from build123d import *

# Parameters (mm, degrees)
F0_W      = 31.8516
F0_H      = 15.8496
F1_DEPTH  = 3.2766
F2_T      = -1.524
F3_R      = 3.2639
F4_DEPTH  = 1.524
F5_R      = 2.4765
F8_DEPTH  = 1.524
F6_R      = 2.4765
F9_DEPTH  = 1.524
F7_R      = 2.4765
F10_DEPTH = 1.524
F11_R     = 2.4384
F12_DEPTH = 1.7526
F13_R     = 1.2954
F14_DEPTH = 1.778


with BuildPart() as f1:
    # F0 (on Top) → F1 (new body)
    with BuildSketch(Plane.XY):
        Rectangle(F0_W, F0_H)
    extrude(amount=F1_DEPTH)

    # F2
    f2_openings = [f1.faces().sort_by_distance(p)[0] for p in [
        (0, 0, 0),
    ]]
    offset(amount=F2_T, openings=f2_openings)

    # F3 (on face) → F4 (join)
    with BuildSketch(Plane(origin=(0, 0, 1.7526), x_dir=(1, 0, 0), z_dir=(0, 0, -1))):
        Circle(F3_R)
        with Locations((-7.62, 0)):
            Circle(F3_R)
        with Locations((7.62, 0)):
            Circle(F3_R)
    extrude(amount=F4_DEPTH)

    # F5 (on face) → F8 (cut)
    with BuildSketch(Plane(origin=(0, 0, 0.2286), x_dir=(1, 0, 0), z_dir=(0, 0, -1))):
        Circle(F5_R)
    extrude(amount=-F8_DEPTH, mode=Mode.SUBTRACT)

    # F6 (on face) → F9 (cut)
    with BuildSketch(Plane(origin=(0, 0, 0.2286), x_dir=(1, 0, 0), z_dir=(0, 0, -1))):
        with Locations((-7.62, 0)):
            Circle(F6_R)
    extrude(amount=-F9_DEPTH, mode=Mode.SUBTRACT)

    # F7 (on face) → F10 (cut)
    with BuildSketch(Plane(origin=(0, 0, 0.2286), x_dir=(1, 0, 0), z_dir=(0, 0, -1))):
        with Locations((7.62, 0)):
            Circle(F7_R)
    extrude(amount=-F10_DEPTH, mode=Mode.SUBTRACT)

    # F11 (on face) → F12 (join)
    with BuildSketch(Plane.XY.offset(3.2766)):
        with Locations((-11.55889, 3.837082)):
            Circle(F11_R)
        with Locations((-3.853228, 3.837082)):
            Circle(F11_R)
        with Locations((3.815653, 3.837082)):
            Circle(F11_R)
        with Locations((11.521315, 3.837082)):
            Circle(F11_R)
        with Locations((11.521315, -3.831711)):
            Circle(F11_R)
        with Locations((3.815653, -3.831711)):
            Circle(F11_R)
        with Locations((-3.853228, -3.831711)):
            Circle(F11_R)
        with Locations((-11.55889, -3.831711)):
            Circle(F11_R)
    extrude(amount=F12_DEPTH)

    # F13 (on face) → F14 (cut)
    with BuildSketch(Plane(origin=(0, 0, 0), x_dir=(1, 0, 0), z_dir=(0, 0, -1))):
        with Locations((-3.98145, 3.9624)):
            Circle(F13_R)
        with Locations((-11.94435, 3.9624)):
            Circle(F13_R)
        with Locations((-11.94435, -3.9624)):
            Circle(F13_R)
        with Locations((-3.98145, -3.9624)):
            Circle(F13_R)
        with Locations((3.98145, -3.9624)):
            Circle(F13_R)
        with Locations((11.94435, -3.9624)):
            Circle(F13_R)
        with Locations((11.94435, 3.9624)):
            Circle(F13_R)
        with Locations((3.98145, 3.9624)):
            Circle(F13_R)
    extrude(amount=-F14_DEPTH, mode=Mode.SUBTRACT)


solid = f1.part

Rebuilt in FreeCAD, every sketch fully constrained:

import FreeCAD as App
import Part
import Sketcher
Q = App.Units.Quantity


def faces_at(feature, points):
    """Names of the faces that lie closest to the given points."""
    faces = feature.Shape.Faces
    near = lambda p: min(range(len(faces)), key=lambda i: faces[i].distToShape(Part.Vertex(*p))[0])
    return sorted({f"Face{near(p) + 1}" for p in points})

doc = App.newDocument("Part")
body = doc.addObject("PartDesign::Body", "Body")

# Sketch on XY plane
sketch1 = body.newObject("Sketcher::SketchObject", "Sketch")
sketch1.AttachmentSupport = (doc.getObject("XY_Plane"), [""])
sketch1.MapMode = "FlatFace"
sketch1.addGeometry(Part.LineSegment(App.Vector(-16, 8, 0), App.Vector(-16, -8, 0)), False)
sketch1.addGeometry(Part.LineSegment(App.Vector(-16, -8, 0), App.Vector(16, -8, 0)), False)
sketch1.addGeometry(Part.LineSegment(App.Vector(16, -8, 0), App.Vector(16, 8, 0)), False)
sketch1.addGeometry(Part.LineSegment(App.Vector(16, 8, 0), App.Vector(-16, 8, 0)), False)
sketch1.addConstraint(Sketcher.Constraint("Coincident", 0, 2, 1, 1))
sketch1.addConstraint(Sketcher.Constraint("Coincident", 1, 2, 2, 1))
sketch1.addConstraint(Sketcher.Constraint("Coincident", 2, 2, 3, 1))
sketch1.addConstraint(Sketcher.Constraint("Coincident", 3, 2, 0, 1))
sketch1.addConstraint(Sketcher.Constraint("Vertical", 0))
sketch1.addConstraint(Sketcher.Constraint("Horizontal", 1))
sketch1.addConstraint(Sketcher.Constraint("Vertical", 2))
sketch1.addConstraint(Sketcher.Constraint("Horizontal", 3))
sketch1.addConstraint(Sketcher.Constraint("Symmetric", 0, 2, 2, 2, -1, 1))
sketch1.addConstraint(Sketcher.Constraint("DistanceX", 1, 1, 1, 2, Q("1.254 in")))
sketch1.addConstraint(Sketcher.Constraint("DistanceY", 0, 2, 0, 1, Q("0.624 in")))
pad1 = body.newObject("PartDesign::Pad", "Pad")
pad1.Profile = sketch1
pad1.Length = Q("0.129 in")
doc.recompute()

thickness = body.newObject("PartDesign::Thickness", "Thickness")
thickness.Base = (pad1, faces_at(pad1, [(0, 0, 0)]))
thickness.Value = Q("0.06 in")
thickness.Reversed = True
thickness.Join = "Arc"

# Sketch on XY plane
sketch2 = body.newObject("Sketcher::SketchObject", "Sketch001")
sketch2.AttachmentSupport = (doc.getObject("XY_Plane"), [""])
sketch2.MapMode = "FlatFace"
sketch2.AttachmentOffset = App.Placement(App.Vector(0, 0, 0.069 * 25.4), App.Rotation())
sketch2.addGeometry(Part.Circle(App.Vector(0, 0, 0), App.Vector(0, 0, 1), 3.3), False)
sketch2.addGeometry(Part.Circle(App.Vector(-7.6, 0, 0), App.Vector(0, 0, 1), 3.3), False)
sketch2.addGeometry(Part.Circle(App.Vector(7.6, 0, 0), App.Vector(0, 0, 1), 3.3), False)
sketch2.addConstraint(Sketcher.Constraint("Coincident", 0, 3, -1, 1))
sketch2.addConstraint(Sketcher.Constraint("Equal", 0, 1))
sketch2.addConstraint(Sketcher.Constraint("Equal", 1, 2))
sketch2.addConstraint(Sketcher.Constraint("Symmetric", 1, 3, 2, 3, -1, 1))
sketch2.addConstraint(Sketcher.Constraint("PointOnObject", 1, 3, -1))
sketch2.addConstraint(Sketcher.Constraint("Diameter", 0, Q("0.257 in")))
sketch2.addConstraint(Sketcher.Constraint("DistanceX", 1, 3, -1, 1, Q("0.3 in")))
pad2 = body.newObject("PartDesign::Pad", "Pad001")
pad2.Profile = sketch2
pad2.Length = Q("0.06 in")
pad2.Reversed = True

# Sketch on XY plane
sketch3 = body.newObject("Sketcher::SketchObject", "Sketch002")
sketch3.AttachmentSupport = (doc.getObject("XY_Plane"), [""])
sketch3.MapMode = "FlatFace"
sketch3.AttachmentOffset = App.Placement(App.Vector(0, 0, 0.009 * 25.4), App.Rotation())
sketch3.addGeometry(Part.Circle(App.Vector(0, 0, 0), App.Vector(0, 0, 1), 2.5), False)
sketch3.addConstraint(Sketcher.Constraint("Coincident", 0, 3, -1, 1))
sketch3.addConstraint(Sketcher.Constraint("Diameter", 0, Q("0.195 in")))
pocket1 = body.newObject("PartDesign::Pocket", "Pocket")
pocket1.Profile = sketch3
pocket1.Length = Q("0.06 in")
pocket1.Reversed = True

# Sketch on XY plane
sketch4 = body.newObject("Sketcher::SketchObject", "Sketch003")
sketch4.AttachmentSupport = (doc.getObject("XY_Plane"), [""])
sketch4.MapMode = "FlatFace"
sketch4.AttachmentOffset = App.Placement(App.Vector(0, 0, 0.009 * 25.4), App.Rotation())
sketch4.addGeometry(Part.Circle(App.Vector(-7.6, 0, 0), App.Vector(0, 0, 1), 2.5), False)
sketch4.addConstraint(Sketcher.Constraint("PointOnObject", 0, 3, -1))
sketch4.addConstraint(Sketcher.Constraint("Diameter", 0, Q("0.195 in")))
sketch4.addConstraint(Sketcher.Constraint("DistanceX", 0, 3, -1, 1, Q("0.3 in")))
pocket2 = body.newObject("PartDesign::Pocket", "Pocket001")
pocket2.Profile = sketch4
pocket2.Length = Q("0.06 in")
pocket2.Reversed = True

# Sketch on XY plane
sketch5 = body.newObject("Sketcher::SketchObject", "Sketch004")
sketch5.AttachmentSupport = (doc.getObject("XY_Plane"), [""])
sketch5.MapMode = "FlatFace"
sketch5.AttachmentOffset = App.Placement(App.Vector(0, 0, 0.009 * 25.4), App.Rotation())
sketch5.addGeometry(Part.Circle(App.Vector(7.6, 0, 0), App.Vector(0, 0, 1), 2.5), False)
sketch5.addConstraint(Sketcher.Constraint("PointOnObject", 0, 3, -1))
sketch5.addConstraint(Sketcher.Constraint("Diameter", 0, Q("0.195 in")))
sketch5.addConstraint(Sketcher.Constraint("DistanceX", -1, 1, 0, 3, Q("0.3 in")))
pocket3 = body.newObject("PartDesign::Pocket", "Pocket002")
pocket3.Profile = sketch5
pocket3.Length = Q("0.06 in")
pocket3.Reversed = True

# Sketch on XY plane
sketch6 = body.newObject("Sketcher::SketchObject", "Sketch005")
sketch6.AttachmentSupport = (doc.getObject("XY_Plane"), [""])
sketch6.MapMode = "FlatFace"
sketch6.AttachmentOffset = App.Placement(App.Vector(0, 0, 0.129 * 25.4), App.Rotation())
sketch6.addGeometry(Part.Circle(App.Vector(-11.6, 3.8, 0), App.Vector(0, 0, 1), 2.4), False)
sketch6.addGeometry(Part.Circle(App.Vector(-3.9, 3.8, 0), App.Vector(0, 0, 1), 2.4), False)
sketch6.addGeometry(Part.Circle(App.Vector(3.8, 3.8, 0), App.Vector(0, 0, 1), 2.4), False)
sketch6.addGeometry(Part.Circle(App.Vector(11.5, 3.8, 0), App.Vector(0, 0, 1), 2.4), False)
sketch6.addGeometry(Part.Circle(App.Vector(11.5, -3.8, 0), App.Vector(0, 0, 1), 2.4), False)
sketch6.addGeometry(Part.Circle(App.Vector(3.8, -3.8, 0), App.Vector(0, 0, 1), 2.4), False)
sketch6.addGeometry(Part.Circle(App.Vector(-3.9, -3.8, 0), App.Vector(0, 0, 1), 2.4), False)
sketch6.addGeometry(Part.Circle(App.Vector(-11.6, -3.8, 0), App.Vector(0, 0, 1), 2.4), False)
sketch6.addConstraint(Sketcher.Constraint("Equal", 0, 1))
sketch6.addConstraint(Sketcher.Constraint("Equal", 1, 2))
sketch6.addConstraint(Sketcher.Constraint("Equal", 2, 3))
sketch6.addConstraint(Sketcher.Constraint("Equal", 3, 4))
sketch6.addConstraint(Sketcher.Constraint("Equal", 4, 5))
sketch6.addConstraint(Sketcher.Constraint("Equal", 5, 6))
sketch6.addConstraint(Sketcher.Constraint("Equal", 6, 7))
sketch6.addConstraint(Sketcher.Constraint("Horizontal", 0, 3, 1, 3))
sketch6.addConstraint(Sketcher.Constraint("Horizontal", 1, 3, 2, 3))
sketch6.addConstraint(Sketcher.Constraint("Horizontal", 2, 3, 3, 3))
sketch6.addConstraint(Sketcher.Constraint("Horizontal", 4, 3, 5, 3))
sketch6.addConstraint(Sketcher.Constraint("Horizontal", 5, 3, 6, 3))
sketch6.addConstraint(Sketcher.Constraint("Horizontal", 6, 3, 7, 3))
sketch6.addConstraint(Sketcher.Constraint("Vertical", 3, 3, 4, 3))
sketch6.addConstraint(Sketcher.Constraint("Vertical", 2, 3, 5, 3))
sketch6.addConstraint(Sketcher.Constraint("Vertical", 1, 3, 6, 3))
sketch6.addConstraint(Sketcher.Constraint("Vertical", 0, 3, 7, 3))
sketch6.addConstraint(Sketcher.Constraint("Diameter", 0, Q("0.192 in")))
sketch6.addConstraint(Sketcher.Constraint("DistanceX", 0, 3, -1, 1, 11.55889))
sketch6.addConstraint(Sketcher.Constraint("DistanceX", 1, 3, -1, 1, 3.853228))
sketch6.addConstraint(Sketcher.Constraint("DistanceY", 4, 3, -1, 1, 3.831711))
sketch6.addConstraint(Sketcher.Constraint("DistanceX", 1, 3, 2, 3, 7.668881))
sketch6.addConstraint(Sketcher.Constraint("DistanceX", 2, 3, 3, 3, 7.705662))
sketch6.addConstraint(Sketcher.Constraint("DistanceY", -1, 1, 0, 3, 3.837082))
pad3 = body.newObject("PartDesign::Pad", "Pad002")
pad3.Profile = sketch6
pad3.Length = Q("0.069 in")

# Sketch on XY plane
sketch7 = body.newObject("Sketcher::SketchObject", "Sketch006")
sketch7.AttachmentSupport = (doc.getObject("XY_Plane"), [""])
sketch7.MapMode = "FlatFace"
sketch7.addGeometry(Part.Circle(App.Vector(-4, -4, 0), App.Vector(0, 0, 1), 1.3), False)
sketch7.addGeometry(Part.Circle(App.Vector(-11.9, -4, 0), App.Vector(0, 0, 1), 1.3), False)
sketch7.addGeometry(Part.Circle(App.Vector(-11.9, 4, 0), App.Vector(0, 0, 1), 1.3), False)
sketch7.addGeometry(Part.Circle(App.Vector(-4, 4, 0), App.Vector(0, 0, 1), 1.3), False)
sketch7.addGeometry(Part.Circle(App.Vector(4, 4, 0), App.Vector(0, 0, 1), 1.3), False)
sketch7.addGeometry(Part.Circle(App.Vector(11.9, 4, 0), App.Vector(0, 0, 1), 1.3), False)
sketch7.addGeometry(Part.Circle(App.Vector(11.9, -4, 0), App.Vector(0, 0, 1), 1.3), False)
sketch7.addGeometry(Part.Circle(App.Vector(4, -4, 0), App.Vector(0, 0, 1), 1.3), False)
sketch7.addConstraint(Sketcher.Constraint("Equal", 0, 1))
sketch7.addConstraint(Sketcher.Constraint("Equal", 1, 2))
sketch7.addConstraint(Sketcher.Constraint("Equal", 2, 3))
sketch7.addConstraint(Sketcher.Constraint("Equal", 3, 4))
sketch7.addConstraint(Sketcher.Constraint("Equal", 4, 5))
sketch7.addConstraint(Sketcher.Constraint("Equal", 5, 6))
sketch7.addConstraint(Sketcher.Constraint("Equal", 6, 7))
sketch7.addConstraint(Sketcher.Constraint("Symmetric", 0, 3, 4, 3, -1, 1))
sketch7.addConstraint(Sketcher.Constraint("Symmetric", 1, 3, 5, 3, -1, 1))
sketch7.addConstraint(Sketcher.Constraint("Symmetric", 2, 3, 6, 3, -1, 1))
sketch7.addConstraint(Sketcher.Constraint("Symmetric", 3, 3, 7, 3, -1, 1))
sketch7.addConstraint(Sketcher.Constraint("Symmetric", 3, 3, 4, 3, -2))
sketch7.addConstraint(Sketcher.Constraint("Symmetric", 2, 3, 5, 3, -2))
sketch7.addConstraint(Sketcher.Constraint("Horizontal", 0, 3, 1, 3))
sketch7.addConstraint(Sketcher.Constraint("Diameter", 0, Q("0.102 in")))
sketch7.addConstraint(Sketcher.Constraint("DistanceY", 0, 3, -1, 1, Q("0.156 in")))
sketch7.addConstraint(Sketcher.Constraint("DistanceX", 2, 3, 4, 3, Q("0.627 in")))
sketch7.addConstraint(Sketcher.Constraint("DistanceX", 1, 3, 0, 3, Q("0.3135 in")))
pocket4 = body.newObject("PartDesign::Pocket", "Pocket003")
pocket4.Profile = sketch7
pocket4.Length = Q("0.07 in")
pocket4.Reversed = True

doc.recompute()
